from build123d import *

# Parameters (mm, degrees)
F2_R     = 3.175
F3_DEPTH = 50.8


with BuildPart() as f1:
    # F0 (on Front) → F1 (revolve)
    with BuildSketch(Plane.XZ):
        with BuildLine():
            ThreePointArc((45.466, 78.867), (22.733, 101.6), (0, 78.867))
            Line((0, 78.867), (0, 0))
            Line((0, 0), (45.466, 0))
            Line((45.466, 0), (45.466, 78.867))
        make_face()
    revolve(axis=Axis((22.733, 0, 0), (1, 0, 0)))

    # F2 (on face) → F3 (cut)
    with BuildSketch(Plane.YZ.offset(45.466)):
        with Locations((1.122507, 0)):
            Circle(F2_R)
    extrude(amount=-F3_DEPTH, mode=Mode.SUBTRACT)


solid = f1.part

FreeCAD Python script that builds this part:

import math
import FreeCAD as App
import Part
import Sketcher

V = App.Vector
Q = App.Units.Quantity

doc = App.newDocument("Part")
body = doc.addObject("PartDesign::Body", "Body")

# Sketch on XZ plane
sketch1 = doc.addObject("Sketcher::SketchObject", "Sketch")
body.addObject(sketch1)
sketch1.AttachmentSupport = (doc.XZ_Plane, [""])
sketch1.MapMode = "FlatFace"
sketch1.addGeometry([
    Part.ArcOfCircle(Part.Circle(V(23, 79, 0), V(0, 0, 1), 23), math.radians(0), math.radians(180)),
    Part.LineSegment(V(0, 79, 0), V(0, 0, 0)),
    Part.LineSegment(V(0, 0, 0), V(45, 0, 0)),
    Part.LineSegment(V(45, 0, 0), V(45, 79, 0)),
], False)
sketch1.addConstraint([
    Sketcher.Constraint("Tangent", 0, 2, 1, 1),
    Sketcher.Constraint("Coincident", 1, 2, 2, 1),
    Sketcher.Constraint("Coincident", 2, 2, 3, 1),
    Sketcher.Constraint("Tangent", 3, 2, 0, 1),
    Sketcher.Constraint("Vertical", 1),
    Sketcher.Constraint("Horizontal", 2),
    Sketcher.Constraint("Vertical", 3),
    Sketcher.Constraint("Coincident", 1, 2, -1, 1),
    Sketcher.Constraint("Radius", 0, Q("0.895 in")),
    Sketcher.Constraint("DistanceY", 1, 2, 1, 1, Q("3.105 in")),
])
revolution = doc.addObject("PartDesign::Revolution", "Revolution")
body.addObject(revolution)
revolution.Profile = sketch1
revolution.ReferenceAxis = (sketch1, ["H_Axis"])
revolution.Angle = 360

# Sketch on YZ plane
sketch2 = doc.addObject("Sketcher::SketchObject", "Sketch001")
body.addObject(sketch2)
sketch2.AttachmentSupport = (doc.YZ_Plane, [""])
sketch2.MapMode = "FlatFace"
sketch2.AttachmentOffset = App.Placement(V(0, 0, 1.79 * 25.4), App.Rotation())
sketch2.addGeometry(Part.Circle(V(1.1, 0, 0), V(0, 0, 1), 3.2), False)
sketch2.addConstraint([
    Sketcher.Constraint("PointOnObject", 0, 3, -1),
    Sketcher.Constraint("Diameter", 0, Q("0.25 in")),
    Sketcher.Constraint("DistanceX", -1, 1, 0, 3, 1.122507),
])
pocket1 = doc.addObject("PartDesign::Pocket", "Pocket")
body.addObject(pocket1)
pocket1.Profile = sketch2
pocket1.Length = Q("2 in")

doc.recompute()
